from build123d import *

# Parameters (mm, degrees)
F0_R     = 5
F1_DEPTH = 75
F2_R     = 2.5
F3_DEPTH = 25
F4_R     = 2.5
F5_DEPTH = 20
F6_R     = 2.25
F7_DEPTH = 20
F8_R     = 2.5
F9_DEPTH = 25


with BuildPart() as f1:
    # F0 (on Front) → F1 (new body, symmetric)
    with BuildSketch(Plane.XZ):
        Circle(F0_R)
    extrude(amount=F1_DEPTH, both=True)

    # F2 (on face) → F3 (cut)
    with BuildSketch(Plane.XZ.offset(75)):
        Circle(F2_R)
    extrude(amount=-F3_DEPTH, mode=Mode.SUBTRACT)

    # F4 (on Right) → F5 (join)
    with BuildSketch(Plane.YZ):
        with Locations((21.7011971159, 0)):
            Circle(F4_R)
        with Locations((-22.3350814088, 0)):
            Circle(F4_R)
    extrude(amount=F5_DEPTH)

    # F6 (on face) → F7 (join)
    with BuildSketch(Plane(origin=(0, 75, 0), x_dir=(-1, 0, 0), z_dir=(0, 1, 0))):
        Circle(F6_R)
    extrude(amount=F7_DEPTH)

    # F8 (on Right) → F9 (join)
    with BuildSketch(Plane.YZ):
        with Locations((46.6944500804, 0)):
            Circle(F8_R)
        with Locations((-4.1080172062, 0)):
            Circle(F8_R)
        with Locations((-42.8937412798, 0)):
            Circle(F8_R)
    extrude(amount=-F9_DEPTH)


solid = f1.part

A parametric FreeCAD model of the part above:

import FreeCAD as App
import Part
import Sketcher

V = App.Vector
Q = App.Units.Quantity

doc = App.newDocument("Part")
body = doc.addObject("PartDesign::Body", "Body")

# Sketch on XZ plane
sketch1 = body.newObject("Sketcher::SketchObject", "Sketch")
sketch1.AttachmentSupport = (doc.getObject("XZ_Plane"), [""])
sketch1.MapMode = "FlatFace"
sketch1.addGeometry(Part.Circle(V(0, 0, 0), V(0, 0, 1), 5), False)
sketch1.addConstraint(Sketcher.Constraint("Coincident", 0, 3, -1, 1))
sketch1.addConstraint(Sketcher.Constraint("Diameter", 0, Q("10 mm")))
pad1 = body.newObject("PartDesign::Pad", "Pad")
pad1.Profile = sketch1
pad1.Length = 150
pad1.Midplane = True

# Sketch on XZ plane
sketch2 = body.newObject("Sketcher::SketchObject", "Sketch001")
sketch2.AttachmentSupport = (doc.getObject("XZ_Plane"), [""])
sketch2.MapMode = "FlatFace"
sketch2.AttachmentOffset = App.Placement(V(0, 0, 75), App.Rotation())
sketch2.addGeometry(Part.Circle(V(0, 0, 0), V(0, 0, 1), 2.5), False)
sketch2.addConstraint(Sketcher.Constraint("Coincident", 0, 3, -1, 1))
sketch2.addConstraint(Sketcher.Constraint("Diameter", 0, Q("5 mm")))
pocket1 = body.newObject("PartDesign::Pocket", "Pocket")
pocket1.Profile = sketch2
pocket1.Length = 25

# Sketch on YZ plane
sketch3 = body.newObject("Sketcher::SketchObject", "Sketch002")
sketch3.AttachmentSupport = (doc.getObject("YZ_Plane"), [""])
sketch3.MapMode = "FlatFace"
sketch3.addGeometry(Part.Circle(V(21.7, 0, 0), V(0, 0, 1), 2.5), False)
sketch3.addGeometry(Part.Circle(V(-22.3, 0, 0), V(0, 0, 1), 2.5), False)
sketch3.addConstraint(Sketcher.Constraint("Equal", 0, 1))
sketch3.addConstraint(Sketcher.Constraint("PointOnObject", 0, 3, -1))
sketch3.addConstraint(Sketcher.Constraint("PointOnObject", 1, 3, -1))
sketch3.addConstraint(Sketcher.Constraint("Diameter", 0, Q("5 mm")))
sketch3.addConstraint(Sketcher.Constraint("DistanceX", 1, 3, -1, 1, Q("22.335081 mm")))
sketch3.addConstraint(Sketcher.Constraint("DistanceX", 1, 3, 0, 3, Q("44.036279 mm")))
pad2 = body.newObject("PartDesign::Pad", "Pad001")
pad2.Profile = sketch3
pad2.Length = 20

# Sketch on XZ plane
sketch4 = body.newObject("Sketcher::SketchObject", "Sketch003")
sketch4.AttachmentSupport = (doc.getObject("XZ_Plane"), [""])
sketch4.MapMode = "FlatFace"
sketch4.AttachmentOffset = App.Placement(V(0, 0, -75), App.Rotation())
sketch4.addGeometry(Part.Circle(V(0, 0, 0), V(0, 0, 1), 2.2), False)
sketch4.addConstraint(Sketcher.Constraint("Coincident", 0, 3, -1, 1))
sketch4.addConstraint(Sketcher.Constraint("Diameter", 0, Q("4.5 mm")))
pad3 = body.newObject("PartDesign::Pad", "Pad002")
pad3.Profile = sketch4
pad3.Length = 20
pad3.Reversed = True

# Sketch on YZ plane
sketch5 = body.newObject("Sketcher::SketchObject", "Sketch004")
sketch5.AttachmentSupport = (doc.getObject("YZ_Plane"), [""])
sketch5.MapMode = "FlatFace"
sketch5.addGeometry(Part.Circle(V(46.7, 0, 0), V(0, 0, 1), 2.5), False)
sketch5.addGeometry(Part.Circle(V(-4.1, 0, 0), V(0, 0, 1), 2.5), False)
sketch5.addGeometry(Part.Circle(V(-42.9, 0, 0), V(0, 0, 1), 2.5), False)
sketch5.addConstraint(Sketcher.Constraint("Equal", 0, 1))
sketch5.addConstraint(Sketcher.Constraint("Equal", 1, 2))
sketch5.addConstraint(Sketcher.Constraint("PointOnObject", 0, 3, -1))
sketch5.addConstraint(Sketcher.Constraint("PointOnObject", 1, 3, -1))
sketch5.addConstraint(Sketcher.Constraint("PointOnObject", 2, 3, -1))
sketch5.addConstraint(Sketcher.Constraint("Diameter", 0, Q("5 mm")))
sketch5.addConstraint(Sketcher.Constraint("DistanceX", -1, 1, 0, 3, Q("46.69445 mm")))
sketch5.addConstraint(Sketcher.Constraint("DistanceX", 2, 3, -1, 1, Q("42.893741 mm")))
sketch5.addConstraint(Sketcher.Constraint("DistanceX", 1, 3, -1, 1, Q("4.108017 mm")))
pad4 = body.newObject("PartDesign::Pad", "Pad003")
pad4.Profile = sketch5
pad4.Length = 25
pad4.Reversed = True

doc.recompute()
